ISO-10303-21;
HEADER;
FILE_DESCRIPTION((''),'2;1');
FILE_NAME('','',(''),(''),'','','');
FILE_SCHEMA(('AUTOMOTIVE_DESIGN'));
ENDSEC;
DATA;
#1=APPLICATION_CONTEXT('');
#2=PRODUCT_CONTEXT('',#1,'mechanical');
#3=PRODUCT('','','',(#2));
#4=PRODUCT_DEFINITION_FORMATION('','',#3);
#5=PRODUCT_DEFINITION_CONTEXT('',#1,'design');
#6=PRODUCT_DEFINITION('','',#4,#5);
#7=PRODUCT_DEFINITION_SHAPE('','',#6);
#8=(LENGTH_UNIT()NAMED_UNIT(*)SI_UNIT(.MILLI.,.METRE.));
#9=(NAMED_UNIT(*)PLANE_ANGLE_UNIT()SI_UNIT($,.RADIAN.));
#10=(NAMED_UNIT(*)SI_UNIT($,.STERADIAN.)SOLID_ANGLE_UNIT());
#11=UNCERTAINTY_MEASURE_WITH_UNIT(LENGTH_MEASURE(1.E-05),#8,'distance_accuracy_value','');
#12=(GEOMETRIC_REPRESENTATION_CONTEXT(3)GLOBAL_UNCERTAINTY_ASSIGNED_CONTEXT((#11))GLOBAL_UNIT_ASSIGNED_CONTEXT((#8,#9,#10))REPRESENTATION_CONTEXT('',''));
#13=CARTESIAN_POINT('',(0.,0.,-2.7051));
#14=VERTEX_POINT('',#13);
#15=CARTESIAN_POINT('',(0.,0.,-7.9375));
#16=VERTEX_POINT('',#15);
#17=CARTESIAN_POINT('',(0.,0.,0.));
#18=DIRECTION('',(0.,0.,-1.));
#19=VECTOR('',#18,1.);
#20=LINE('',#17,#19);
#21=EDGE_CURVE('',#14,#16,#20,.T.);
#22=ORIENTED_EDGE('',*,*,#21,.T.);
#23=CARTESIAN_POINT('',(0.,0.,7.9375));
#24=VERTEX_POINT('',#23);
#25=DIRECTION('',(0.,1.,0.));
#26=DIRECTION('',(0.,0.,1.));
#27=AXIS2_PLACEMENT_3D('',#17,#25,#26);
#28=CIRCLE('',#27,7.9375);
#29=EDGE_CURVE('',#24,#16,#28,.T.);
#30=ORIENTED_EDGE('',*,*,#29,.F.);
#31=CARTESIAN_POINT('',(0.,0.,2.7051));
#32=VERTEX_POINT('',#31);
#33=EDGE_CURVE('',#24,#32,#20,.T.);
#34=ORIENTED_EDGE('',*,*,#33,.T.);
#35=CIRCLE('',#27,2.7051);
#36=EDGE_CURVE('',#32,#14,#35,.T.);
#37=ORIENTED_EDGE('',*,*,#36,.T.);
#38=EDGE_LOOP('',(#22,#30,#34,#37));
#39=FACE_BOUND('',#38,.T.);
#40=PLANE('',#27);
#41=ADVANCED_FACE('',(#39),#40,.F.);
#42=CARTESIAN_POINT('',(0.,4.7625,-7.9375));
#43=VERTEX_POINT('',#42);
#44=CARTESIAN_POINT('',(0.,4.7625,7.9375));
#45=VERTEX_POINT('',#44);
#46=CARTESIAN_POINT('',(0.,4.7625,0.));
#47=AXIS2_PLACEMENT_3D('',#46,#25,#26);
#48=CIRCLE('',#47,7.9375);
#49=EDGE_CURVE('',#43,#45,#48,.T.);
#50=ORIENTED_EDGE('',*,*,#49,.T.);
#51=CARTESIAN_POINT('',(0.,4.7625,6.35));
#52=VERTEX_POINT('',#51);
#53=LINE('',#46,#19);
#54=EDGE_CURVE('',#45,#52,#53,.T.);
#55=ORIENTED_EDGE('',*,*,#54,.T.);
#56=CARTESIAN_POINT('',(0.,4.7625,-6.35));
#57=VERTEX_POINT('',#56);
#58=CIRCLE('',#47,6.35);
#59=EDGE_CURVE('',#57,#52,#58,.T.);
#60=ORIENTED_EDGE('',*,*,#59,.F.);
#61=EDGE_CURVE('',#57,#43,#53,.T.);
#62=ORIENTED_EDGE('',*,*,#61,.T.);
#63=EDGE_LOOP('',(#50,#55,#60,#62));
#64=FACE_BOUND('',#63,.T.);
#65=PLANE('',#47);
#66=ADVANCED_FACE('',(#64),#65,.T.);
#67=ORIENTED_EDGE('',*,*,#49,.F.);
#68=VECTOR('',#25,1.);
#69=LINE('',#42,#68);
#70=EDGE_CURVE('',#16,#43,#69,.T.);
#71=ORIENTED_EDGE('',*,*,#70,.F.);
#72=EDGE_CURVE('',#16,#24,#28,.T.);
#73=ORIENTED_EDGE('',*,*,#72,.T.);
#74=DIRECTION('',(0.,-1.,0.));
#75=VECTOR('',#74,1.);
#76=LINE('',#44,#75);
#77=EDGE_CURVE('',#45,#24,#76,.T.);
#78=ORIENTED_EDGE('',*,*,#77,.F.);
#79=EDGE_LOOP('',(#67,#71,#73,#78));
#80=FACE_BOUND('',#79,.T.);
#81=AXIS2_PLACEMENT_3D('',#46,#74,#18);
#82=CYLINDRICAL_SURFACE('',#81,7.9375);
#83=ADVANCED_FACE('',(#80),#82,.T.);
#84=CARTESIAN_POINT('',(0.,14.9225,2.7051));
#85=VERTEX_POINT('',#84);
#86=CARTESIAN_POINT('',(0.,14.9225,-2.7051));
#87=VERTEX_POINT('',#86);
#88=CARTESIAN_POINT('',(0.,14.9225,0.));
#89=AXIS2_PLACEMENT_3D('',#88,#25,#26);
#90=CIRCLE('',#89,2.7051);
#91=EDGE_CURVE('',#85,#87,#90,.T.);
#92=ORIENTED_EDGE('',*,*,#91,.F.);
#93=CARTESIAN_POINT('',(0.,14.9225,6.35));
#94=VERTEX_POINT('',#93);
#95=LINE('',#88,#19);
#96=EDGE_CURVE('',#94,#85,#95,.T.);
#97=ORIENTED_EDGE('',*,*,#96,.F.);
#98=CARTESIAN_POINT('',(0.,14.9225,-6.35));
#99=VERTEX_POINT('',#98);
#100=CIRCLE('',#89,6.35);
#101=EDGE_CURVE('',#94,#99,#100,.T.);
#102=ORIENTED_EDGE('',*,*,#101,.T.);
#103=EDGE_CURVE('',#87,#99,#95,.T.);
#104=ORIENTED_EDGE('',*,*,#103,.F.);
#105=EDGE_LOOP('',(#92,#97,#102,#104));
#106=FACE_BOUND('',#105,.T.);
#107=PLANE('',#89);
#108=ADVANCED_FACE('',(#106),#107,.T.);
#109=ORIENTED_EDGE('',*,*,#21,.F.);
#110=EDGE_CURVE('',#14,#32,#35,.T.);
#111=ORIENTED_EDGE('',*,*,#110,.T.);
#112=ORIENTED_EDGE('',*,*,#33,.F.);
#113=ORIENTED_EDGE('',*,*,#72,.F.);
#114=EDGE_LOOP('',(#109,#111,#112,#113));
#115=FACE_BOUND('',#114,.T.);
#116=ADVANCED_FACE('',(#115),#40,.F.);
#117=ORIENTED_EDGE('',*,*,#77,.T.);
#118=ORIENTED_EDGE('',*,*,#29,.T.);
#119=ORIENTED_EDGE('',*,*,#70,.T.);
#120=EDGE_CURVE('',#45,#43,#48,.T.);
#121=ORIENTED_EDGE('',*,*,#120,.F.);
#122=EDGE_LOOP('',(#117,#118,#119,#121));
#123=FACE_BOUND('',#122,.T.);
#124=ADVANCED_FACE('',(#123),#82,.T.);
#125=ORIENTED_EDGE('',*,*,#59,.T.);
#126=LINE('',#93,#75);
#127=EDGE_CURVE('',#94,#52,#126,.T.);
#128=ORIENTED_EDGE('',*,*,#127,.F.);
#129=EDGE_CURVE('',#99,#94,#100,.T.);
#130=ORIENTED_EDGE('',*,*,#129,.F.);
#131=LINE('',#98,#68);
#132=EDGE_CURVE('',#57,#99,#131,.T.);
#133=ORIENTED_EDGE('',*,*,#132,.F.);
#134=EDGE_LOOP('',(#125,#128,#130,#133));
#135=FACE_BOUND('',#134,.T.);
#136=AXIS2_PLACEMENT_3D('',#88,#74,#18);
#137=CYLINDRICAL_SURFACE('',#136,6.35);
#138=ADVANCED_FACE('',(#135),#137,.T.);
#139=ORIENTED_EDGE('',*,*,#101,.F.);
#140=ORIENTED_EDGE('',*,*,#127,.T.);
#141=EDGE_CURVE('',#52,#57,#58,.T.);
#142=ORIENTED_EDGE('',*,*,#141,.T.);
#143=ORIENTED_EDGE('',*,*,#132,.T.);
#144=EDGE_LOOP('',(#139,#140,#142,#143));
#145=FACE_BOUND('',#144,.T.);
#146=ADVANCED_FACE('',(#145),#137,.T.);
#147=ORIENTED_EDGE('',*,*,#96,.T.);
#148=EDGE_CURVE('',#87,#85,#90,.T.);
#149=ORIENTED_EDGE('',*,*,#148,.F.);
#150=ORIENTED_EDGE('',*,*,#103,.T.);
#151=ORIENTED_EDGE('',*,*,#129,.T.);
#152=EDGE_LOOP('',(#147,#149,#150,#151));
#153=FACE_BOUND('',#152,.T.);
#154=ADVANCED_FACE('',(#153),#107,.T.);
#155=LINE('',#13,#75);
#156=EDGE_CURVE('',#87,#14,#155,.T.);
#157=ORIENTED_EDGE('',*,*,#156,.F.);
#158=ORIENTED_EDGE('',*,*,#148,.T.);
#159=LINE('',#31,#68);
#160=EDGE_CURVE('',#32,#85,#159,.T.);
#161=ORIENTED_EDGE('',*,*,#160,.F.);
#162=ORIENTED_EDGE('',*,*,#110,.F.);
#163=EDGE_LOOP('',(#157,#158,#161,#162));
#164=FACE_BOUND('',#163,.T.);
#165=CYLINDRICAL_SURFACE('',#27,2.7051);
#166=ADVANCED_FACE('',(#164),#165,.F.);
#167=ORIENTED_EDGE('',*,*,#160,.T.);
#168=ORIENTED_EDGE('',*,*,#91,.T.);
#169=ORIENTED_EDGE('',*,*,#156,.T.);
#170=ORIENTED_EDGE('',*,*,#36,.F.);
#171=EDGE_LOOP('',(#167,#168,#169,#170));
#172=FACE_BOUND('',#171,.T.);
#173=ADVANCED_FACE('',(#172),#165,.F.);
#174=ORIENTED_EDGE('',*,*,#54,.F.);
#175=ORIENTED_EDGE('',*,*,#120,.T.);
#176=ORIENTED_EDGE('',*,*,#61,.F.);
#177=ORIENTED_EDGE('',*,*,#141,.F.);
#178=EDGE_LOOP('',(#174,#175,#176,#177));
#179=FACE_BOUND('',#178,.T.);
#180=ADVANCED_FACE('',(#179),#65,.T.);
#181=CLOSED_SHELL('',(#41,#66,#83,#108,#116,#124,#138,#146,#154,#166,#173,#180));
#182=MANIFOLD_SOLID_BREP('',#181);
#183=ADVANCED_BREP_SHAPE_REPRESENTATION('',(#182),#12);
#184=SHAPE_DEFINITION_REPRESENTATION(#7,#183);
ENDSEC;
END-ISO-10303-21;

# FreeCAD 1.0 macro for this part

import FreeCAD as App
import Part
import Sketcher
Q = App.Units.Quantity

doc = App.newDocument("Part")
body = doc.addObject("PartDesign::Body", "Body")

sketch1 = body.newObject("Sketcher::SketchObject", "Sketch")
sketch1.AttachmentSupport = (doc.getObject("XZ_Plane"), [""])
sketch1.MapMode = "FlatFace"
sketch1.addGeometry(Part.Circle(App.Vector(0, 0, 0), App.Vector(0, 0, 1), 8), False)
sketch1.addConstraint([
    Sketcher.Constraint("Coincident", 0, 3, -1, 1),
    Sketcher.Constraint("Diameter", 0, Q("0.625 in")),
])
pad1 = body.newObject("PartDesign::Pad", "Pad")
pad1.Profile = sketch1
pad1.Length = Q("0.1875 in")
pad1.Reversed = True

sketch2 = body.newObject("Sketcher::SketchObject", "Sketch001")
sketch2.AttachmentSupport = (doc.getObject("XZ_Plane"), [""])
sketch2.MapMode = "FlatFace"
sketch2.AttachmentOffset = App.Placement(App.Vector(0, 0, -0.1875 * 25.4), App.Rotation())
sketch2.addGeometry(Part.Circle(App.Vector(0, 0, 0), App.Vector(0, 0, 1), 6), False)
sketch2.addConstraint([
    Sketcher.Constraint("Coincident", 0, 3, -1, 1),
    Sketcher.Constraint("Diameter", 0, Q("0.5 in")),
])
pad2 = body.newObject("PartDesign::Pad", "Pad001")
pad2.Profile = sketch2
pad2.Length = Q("0.4 in")
pad2.Reversed = True

sketch3 = body.newObject("Sketcher::SketchObject", "Sketch002")
sketch3.AttachmentSupport = (doc.getObject("XZ_Plane"), [""])
sketch3.MapMode = "FlatFace"
sketch3.AttachmentOffset = App.Placement(App.Vector(0, 0, -0.5875 * 25.4), App.Rotation())
sketch3.addGeometry(Part.Circle(App.Vector(0, 0, 0), App.Vector(0, 0, 1), 2.7), False)
sketch3.addConstraint([
    Sketcher.Constraint("Coincident", 0, 3, -1, 1),
    Sketcher.Constraint("Diameter", 0, Q("0.213 in")),
])
pocket1 = body.newObject("PartDesign::Pocket", "Pocket")
pocket1.Profile = sketch3
pocket1.Type = "ThroughAll"
pocket1.Reversed = True

doc.recompute()
